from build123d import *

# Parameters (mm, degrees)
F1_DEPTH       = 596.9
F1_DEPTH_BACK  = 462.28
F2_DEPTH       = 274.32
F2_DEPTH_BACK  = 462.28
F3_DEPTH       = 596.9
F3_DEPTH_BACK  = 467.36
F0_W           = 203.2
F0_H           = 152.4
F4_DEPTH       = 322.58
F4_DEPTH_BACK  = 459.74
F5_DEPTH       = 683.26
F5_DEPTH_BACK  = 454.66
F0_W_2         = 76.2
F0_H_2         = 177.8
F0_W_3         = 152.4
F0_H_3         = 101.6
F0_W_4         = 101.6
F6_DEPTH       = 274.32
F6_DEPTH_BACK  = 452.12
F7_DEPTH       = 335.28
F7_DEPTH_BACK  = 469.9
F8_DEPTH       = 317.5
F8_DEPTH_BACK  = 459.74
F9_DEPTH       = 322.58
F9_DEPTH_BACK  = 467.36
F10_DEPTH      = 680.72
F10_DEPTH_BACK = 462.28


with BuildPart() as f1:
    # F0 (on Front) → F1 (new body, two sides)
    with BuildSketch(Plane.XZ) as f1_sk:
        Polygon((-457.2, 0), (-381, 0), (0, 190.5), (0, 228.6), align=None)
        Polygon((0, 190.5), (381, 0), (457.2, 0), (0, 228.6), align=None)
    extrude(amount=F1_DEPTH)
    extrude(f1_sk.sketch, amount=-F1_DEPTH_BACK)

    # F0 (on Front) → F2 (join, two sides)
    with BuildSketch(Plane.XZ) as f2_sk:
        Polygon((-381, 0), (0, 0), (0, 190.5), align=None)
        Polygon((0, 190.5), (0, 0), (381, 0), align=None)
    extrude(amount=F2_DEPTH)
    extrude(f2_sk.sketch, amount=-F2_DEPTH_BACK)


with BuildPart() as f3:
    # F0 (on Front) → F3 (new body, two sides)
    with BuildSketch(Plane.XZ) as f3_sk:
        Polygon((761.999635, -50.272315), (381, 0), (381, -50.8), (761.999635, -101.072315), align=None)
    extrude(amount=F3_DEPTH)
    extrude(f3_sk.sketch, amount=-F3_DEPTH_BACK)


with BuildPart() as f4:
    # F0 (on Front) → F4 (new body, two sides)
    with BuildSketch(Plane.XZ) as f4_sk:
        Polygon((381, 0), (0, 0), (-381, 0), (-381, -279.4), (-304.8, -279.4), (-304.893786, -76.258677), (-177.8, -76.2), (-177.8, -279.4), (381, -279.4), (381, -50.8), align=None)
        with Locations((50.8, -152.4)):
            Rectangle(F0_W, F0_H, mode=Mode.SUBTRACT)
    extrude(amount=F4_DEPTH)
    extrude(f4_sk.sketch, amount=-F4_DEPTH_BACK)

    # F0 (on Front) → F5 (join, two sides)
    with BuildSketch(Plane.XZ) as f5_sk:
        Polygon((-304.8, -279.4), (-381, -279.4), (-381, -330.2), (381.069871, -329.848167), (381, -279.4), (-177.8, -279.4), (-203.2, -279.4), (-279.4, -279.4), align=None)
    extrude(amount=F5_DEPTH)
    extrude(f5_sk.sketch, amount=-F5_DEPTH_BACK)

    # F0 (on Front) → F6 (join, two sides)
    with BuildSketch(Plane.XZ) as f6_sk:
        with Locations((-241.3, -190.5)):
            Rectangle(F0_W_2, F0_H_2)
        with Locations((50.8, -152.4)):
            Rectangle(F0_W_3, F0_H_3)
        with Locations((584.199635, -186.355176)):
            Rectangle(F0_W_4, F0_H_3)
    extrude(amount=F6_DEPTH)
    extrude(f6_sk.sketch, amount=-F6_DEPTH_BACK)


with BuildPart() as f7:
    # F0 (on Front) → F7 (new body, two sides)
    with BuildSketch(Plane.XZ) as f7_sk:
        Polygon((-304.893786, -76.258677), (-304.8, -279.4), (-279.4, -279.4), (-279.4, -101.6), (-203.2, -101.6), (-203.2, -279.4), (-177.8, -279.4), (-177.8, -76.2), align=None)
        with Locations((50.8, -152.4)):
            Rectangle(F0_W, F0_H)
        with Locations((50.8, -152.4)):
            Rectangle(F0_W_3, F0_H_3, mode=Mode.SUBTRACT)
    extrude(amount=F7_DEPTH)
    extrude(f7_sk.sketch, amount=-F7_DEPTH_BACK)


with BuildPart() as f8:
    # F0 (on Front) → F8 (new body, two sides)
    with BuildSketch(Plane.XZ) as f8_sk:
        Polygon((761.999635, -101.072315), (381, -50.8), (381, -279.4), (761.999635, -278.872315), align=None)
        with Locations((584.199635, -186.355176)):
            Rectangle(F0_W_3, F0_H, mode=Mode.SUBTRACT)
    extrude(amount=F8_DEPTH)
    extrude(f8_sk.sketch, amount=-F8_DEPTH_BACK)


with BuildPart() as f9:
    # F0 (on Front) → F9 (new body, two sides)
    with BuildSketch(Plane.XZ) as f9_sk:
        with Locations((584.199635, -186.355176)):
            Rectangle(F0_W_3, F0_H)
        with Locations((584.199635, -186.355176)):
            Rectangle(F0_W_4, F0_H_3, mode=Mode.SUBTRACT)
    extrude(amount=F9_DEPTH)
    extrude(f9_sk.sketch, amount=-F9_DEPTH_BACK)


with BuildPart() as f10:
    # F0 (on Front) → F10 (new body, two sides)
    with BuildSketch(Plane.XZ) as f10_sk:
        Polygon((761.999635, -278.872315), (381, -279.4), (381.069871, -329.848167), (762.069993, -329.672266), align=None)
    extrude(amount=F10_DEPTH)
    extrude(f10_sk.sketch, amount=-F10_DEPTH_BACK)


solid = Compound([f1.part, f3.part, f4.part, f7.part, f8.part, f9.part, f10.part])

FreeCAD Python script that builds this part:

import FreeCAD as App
import Part
import Sketcher
Q = App.Units.Quantity


def add_polygon(sketch, points):
    """Adds a closed chain of lines whose ends are joined by coincident constraints."""
    first, n = sketch.GeometryCount, len(points)
    for a, b in zip(points, points[1:] + points[:1]):
        sketch.addGeometry(Part.LineSegment(App.Vector(*a, 0), App.Vector(*b, 0)), False)
    for i in range(n):
        sketch.addConstraint(Sketcher.Constraint("Coincident", first + i, 2, first + (i + 1) % n, 1))

doc = App.newDocument("Part")
params = doc.addObject("Spreadsheet::Sheet", "Params")
for row, (alias, value) in enumerate([
    ("sketch1_width", "3 in"),
    ("pad1_length", "23.5 in"),
    ("pad1_length2", "18.2 in"),
    ("sketch2_width", "30 in"),
    ("pad2_length", "10.8 in"),
    ("pad2_length2", "18.2 in"),
    ("sketch3_height", "2 in"),
    ("sketch3_length", "15.13 in"),
    ("pad3_length", "23.5 in"),
    ("pad3_length2", "18.4 in"),
    ("sketch4_width", "30 in"),
    ("sketch4_width2", "3 in"),
    ("sketch4_width3", "22 in"),
    ("sketch4_width4", "8 in"),
    ("sketch4_height", "11 in"),
    ("pad4_length", "12.7 in"),
    ("pad4_length2", "18.1 in"),
    ("sketch5_width", "30 in"),
    ("sketch5_height", "2 in"),
    ("pad5_length", "26.9 in"),
    ("pad5_length2", "17.9 in"),
    ("sketch6_width", "3 in"),
    ("sketch6_width2", "6 in"),
    ("sketch6_width3", "4 in"),
    ("sketch6_height", "7 in"),
    ("pad6_length", "10.8 in"),
    ("pad6_length2", "17.8 in"),
    ("sketch7_width", "1 in"),
    ("sketch7_width2", "3 in"),
    ("sketch7_width3", "8 in"),
    ("sketch7_width4", "6 in"),
    ("sketch7_height", "7 in"),
    ("pad7_length", "13.2 in"),
    ("pad7_length2", "18.5 in"),
    ("sketch8_width", "6 in"),
    ("sketch8_height", "9 in"),
    ("sketch8_height2", "7 in"),
    ("sketch8_length", "15 in"),
    ("sketch8_length2", "15.13 in"),
    ("pad8_length", "12.5 in"),
    ("pad8_length2", "18.1 in"),
    ("sketch9_width", "6 in"),
    ("sketch9_width2", "4 in"),
    ("pad9_length", "12.7 in"),
    ("pad9_length2", "18.4 in"),
    ("sketch10_length", "15 in"),
    ("sketch10_length2", "2 in"),
    ("pad10_length", "26.8 in"),
    ("pad10_length2", "18.2 in"),
], start=1):
    params.set(f"A{row}", alias)
    params.set(f"B{row}", "=" + value)
    params.setAlias(f"B{row}", alias)

body = doc.addObject("PartDesign::Body", "Body")

sketch1 = body.newObject("Sketcher::SketchObject", "Sketch")
sketch1.AttachmentSupport = (doc.getObject("XZ_Plane"), [""])
sketch1.MapMode = "FlatFace"
add_polygon(sketch1, [(-457.2, 0), (-381, 0), (0, 190.5), (381, 0), (457.2, 0), (0, 228.6)])
sketch1.addConstraint(Sketcher.Constraint("Horizontal", 0))
sketch1.addConstraint(Sketcher.Constraint("Horizontal", 3))
sketch1.addConstraint(Sketcher.Constraint("Symmetric", 0, 2, 2, 2, -1, 1))
sketch1.addConstraint(Sketcher.Constraint("Symmetric", 3, 2, 5, 2, -2))
sketch1.addConstraint(Sketcher.Constraint("PointOnObject", 1, 2, -2))
sketch1.addConstraint(Sketcher.Constraint("PointOnObject", 4, 2, -2))
sketch1.addConstraint(Sketcher.Constraint("Parallel", 2, 4))
sketch1.addConstraint(Sketcher.Constraint("DistanceX", 0, 1, 0, 2, Q("3 in")))
sketch1.addConstraint(Sketcher.Constraint("DistanceX", 0, 2, -1, 1, Q("15 in")))
sketch1.addConstraint(Sketcher.Constraint("DistanceY", -1, 1, 4, 2, Q("9 in")))
sketch1.setExpression("Constraints[13]", "Params.sketch1_width")
pad1 = body.newObject("PartDesign::Pad", "Pad")
pad1.Profile = sketch1
pad1.Type = "TwoLengths"
pad1.setExpression("Length", "Params.pad1_length")
pad1.setExpression("Length2", "Params.pad1_length2")

sketch2 = body.newObject("Sketcher::SketchObject", "Sketch001")
sketch2.AttachmentSupport = (doc.getObject("XZ_Plane"), [""])
sketch2.MapMode = "FlatFace"
add_polygon(sketch2, [(-381, 0), (381, 0), (0, 190.5)])
sketch2.addConstraint(Sketcher.Constraint("Horizontal", 0))
sketch2.addConstraint(Sketcher.Constraint("Symmetric", 0, 2, 2, 2, -1, 1))
sketch2.addConstraint(Sketcher.Constraint("PointOnObject", 1, 2, -2))
sketch2.addConstraint(Sketcher.Constraint("DistanceX", 0, 1, 0, 2, Q("30 in")))
sketch2.addConstraint(Sketcher.Constraint("DistanceY", -1, 1, 1, 2, Q("7.5 in")))
sketch2.setExpression("Constraints[6]", "Params.sketch2_width")
pad2 = body.newObject("PartDesign::Pad", "Pad001")
pad2.Profile = sketch2
pad2.Type = "TwoLengths"
pad2.setExpression("Length", "Params.pad2_length")
pad2.setExpression("Length2", "Params.pad2_length2")
body2 = doc.addObject("PartDesign::Body", "Body001")

sketch3 = body2.newObject("Sketcher::SketchObject", "Sketch002")
sketch3.AttachmentSupport = (doc.getObject("XZ_Plane001"), [""])
sketch3.MapMode = "FlatFace"
add_polygon(sketch3, [(761.999635, -50.272315), (381, 0), (381, -50.8), (761.999635, -101.072315)])
sketch3.addConstraint(Sketcher.Constraint("Vertical", 1))
sketch3.addConstraint(Sketcher.Constraint("Vertical", 3))
sketch3.addConstraint(Sketcher.Constraint("PointOnObject", 0, 2, -1))
sketch3.addConstraint(Sketcher.Constraint("Parallel", 0, 2))
sketch3.addConstraint(Sketcher.Constraint("DistanceY", 1, 2, 1, 1, Q("2 in")))
sketch3.addConstraint(Sketcher.Constraint("DistanceX", -1, 1, 0, 2, Q("15 in")))
sketch3.addConstraint(Sketcher.Constraint("Distance", 0, Q("15.13 in")))
sketch3.addConstraint(Sketcher.Constraint("DistanceX", -1, 1, 2, 2, 761.999635))
sketch3.setExpression("Constraints[8]", "Params.sketch3_height")
sketch3.setExpression("Constraints[10]", "Params.sketch3_length")
pad3 = body2.newObject("PartDesign::Pad", "Pad002")
pad3.Profile = sketch3
pad3.Type = "TwoLengths"
pad3.setExpression("Length", "Params.pad3_length")
pad3.setExpression("Length2", "Params.pad3_length2")
body3 = doc.addObject("PartDesign::Body", "Body002")
body3.AllowCompound = True

sketch4 = body3.newObject("Sketcher::SketchObject", "Sketch003")
sketch4.AttachmentSupport = (doc.getObject("XZ_Plane002"), [""])
sketch4.MapMode = "FlatFace"
add_polygon(sketch4, [(381, 0), (-381, 0), (-381, -279.4), (-304.8, -279.4), (-304.893786, -76.258677), (-177.8, -76.2), (-177.8, -279.4), (381, -279.4)])
add_polygon(sketch4, [(152.4, -228.6), (-50.8, -228.6), (-50.8, -76.2), (152.4, -76.2)])
sketch4.addConstraint(Sketcher.Constraint("Horizontal", 0))
sketch4.addConstraint(Sketcher.Constraint("Vertical", 1))
sketch4.addConstraint(Sketcher.Constraint("Horizontal", 2))
sketch4.addConstraint(Sketcher.Constraint("Vertical", 5))
sketch4.addConstraint(Sketcher.Constraint("Horizontal", 6))
sketch4.addConstraint(Sketcher.Constraint("Vertical", 7))
sketch4.addConstraint(Sketcher.Constraint("Horizontal", 8))
sketch4.addConstraint(Sketcher.Constraint("Vertical", 9))
sketch4.addConstraint(Sketcher.Constraint("Horizontal", 10))
sketch4.addConstraint(Sketcher.Constraint("Vertical", 11))
sketch4.addConstraint(Sketcher.Constraint("Symmetric", 0, 2, 7, 2, -1, 1))
sketch4.addConstraint(Sketcher.Constraint("Perpendicular", 3, 4))
sketch4.addConstraint(Sketcher.Constraint("Horizontal", 2, 2, 5, 2))
sketch4.addConstraint(Sketcher.Constraint("Horizontal", 4, 2, 9, 2))
sketch4.addConstraint(Sketcher.Constraint("Equal", 10, 5))
sketch4.addConstraint(Sketcher.Constraint("DistanceX", 0, 2, 0, 1, Q("30 in")))
sketch4.addConstraint(Sketcher.Constraint("DistanceX", 2, 1, 2, 2, Q("3 in")))
sketch4.addConstraint(Sketcher.Constraint("DistanceX", 6, 1, 6, 2, Q("22 in")))
sketch4.addConstraint(Sketcher.Constraint("DistanceX", 8, 2, 8, 1, Q("8 in")))
sketch4.addConstraint(Sketcher.Constraint("DistanceY", 1, 2, 1, 1, Q("11 in")))
sketch4.addConstraint(Sketcher.Constraint("DistanceY", 9, 1, 9, 2, Q("6 in")))
sketch4.addConstraint(Sketcher.Constraint("DistanceX", 8, 2, -1, 1, Q("2 in")))
sketch4.addConstraint(Sketcher.Constraint("Distance", 4, 127.0938))
sketch4.setExpression("Constraints[27]", "Params.sketch4_width")
sketch4.setExpression("Constraints[28]", "Params.sketch4_width2")
sketch4.setExpression("Constraints[29]", "Params.sketch4_width3")
sketch4.setExpression("Constraints[30]", "Params.sketch4_width4")
sketch4.setExpression("Constraints[31]", "Params.sketch4_height")
pad4 = body3.newObject("PartDesign::Pad", "Pad003")
pad4.Profile = sketch4
pad4.Type = "TwoLengths"
pad4.setExpression("Length", "Params.pad4_length")
pad4.setExpression("Length2", "Params.pad4_length2")

sketch5 = body3.newObject("Sketcher::SketchObject", "Sketch004")
sketch5.AttachmentSupport = (doc.getObject("XZ_Plane002"), [""])
sketch5.MapMode = "FlatFace"
add_polygon(sketch5, [(-381, -279.4), (-381, -330.2), (381.069871, -329.848167), (381, -279.4)])
sketch5.addConstraint(Sketcher.Constraint("Vertical", 0))
sketch5.addConstraint(Sketcher.Constraint("Horizontal", 3))
sketch5.addConstraint(Sketcher.Constraint("DistanceX", 3, 2, 3, 1, Q("30 in")))
sketch5.addConstraint(Sketcher.Constraint("DistanceY", 0, 2, 0, 1, Q("2 in")))
sketch5.addConstraint(Sketcher.Constraint("DistanceX", 0, 2, -1, 1, Q("15 in")))
sketch5.addConstraint(Sketcher.Constraint("DistanceY", 0, 2, -1, 1, Q("13 in")))
sketch5.addConstraint(Sketcher.Constraint("DistanceX", -1, 1, 1, 2, 381.069871))
sketch5.addConstraint(Sketcher.Constraint("Distance", 2, 50.448215))
sketch5.setExpression("Constraints[6]", "Params.sketch5_width")
sketch5.setExpression("Constraints[7]", "Params.sketch5_height")
pad5 = body3.newObject("PartDesign::Pad", "Pad004")
pad5.Profile = sketch5
pad5.Type = "TwoLengths"
pad5.setExpression("Length", "Params.pad5_length")
pad5.setExpression("Length2", "Params.pad5_length2")

sketch6 = body3.newObject("Sketcher::SketchObject", "Sketch005")
sketch6.AttachmentSupport = (doc.getObject("XZ_Plane002"), [""])
sketch6.MapMode = "FlatFace"
add_polygon(sketch6, [(-279.4, -101.6), (-279.4, -279.4), (-203.2, -279.4), (-203.2, -101.6)])
add_polygon(sketch6, [(-25.4, -101.6), (-25.4, -203.2), (127, -203.2), (127, -101.6)])
add_polygon(sketch6, [(533.399635, -135.555176), (533.399635, -237.155176), (634.999635, -237.155176), (634.999635, -135.555176)])
sketch6.addConstraint(Sketcher.Constraint("Vertical", 0))
sketch6.addConstraint(Sketcher.Constraint("Horizontal", 1))
sketch6.addConstraint(Sketcher.Constraint("Vertical", 2))
sketch6.addConstraint(Sketcher.Constraint("Horizontal", 3))
sketch6.addConstraint(Sketcher.Constraint("Vertical", 4))
sketch6.addConstraint(Sketcher.Constraint("Horizontal", 5))
sketch6.addConstraint(Sketcher.Constraint("Vertical", 6))
sketch6.addConstraint(Sketcher.Constraint("Horizontal", 7))
sketch6.addConstraint(Sketcher.Constraint("Vertical", 8))
sketch6.addConstraint(Sketcher.Constraint("Horizontal", 9))
sketch6.addConstraint(Sketcher.Constraint("Vertical", 10))
sketch6.addConstraint(Sketcher.Constraint("Horizontal", 11))
sketch6.addConstraint(Sketcher.Constraint("Horizontal", 3, 2, 6, 2))
sketch6.addConstraint(Sketcher.Constraint("Equal", 11, 4))
sketch6.addConstraint(Sketcher.Constraint("Equal", 6, 8))
sketch6.addConstraint(Sketcher.Constraint("DistanceX", 1, 1, 1, 2, Q("3 in")))
sketch6.addConstraint(Sketcher.Constraint("DistanceX", 5, 1, 5, 2, Q("6 in")))
sketch6.addConstraint(Sketcher.Constraint("DistanceX", 9, 1, 9, 2, Q("4 in")))
sketch6.addConstraint(Sketcher.Constraint("DistanceY", 0, 2, 0, 1, Q("7 in")))
sketch6.addConstraint(Sketcher.Constraint("DistanceX", 0, 2, -1, 1, Q("11 in")))
sketch6.addConstraint(Sketcher.Constraint("DistanceY", 0, 2, -1, 1, Q("11 in")))
sketch6.addConstraint(Sketcher.Constraint("DistanceX", 4, 2, -1, 1, Q("1 in")))
sketch6.addConstraint(Sketcher.Constraint("DistanceX", -1, 1, 8, 2, 533.399635))
sketch6.addConstraint(Sketcher.Constraint("DistanceY", 8, 2, -1, 1, 237.155176))
sketch6.setExpression("Constraints[27]", "Params.sketch6_width")
sketch6.setExpression("Constraints[28]", "Params.sketch6_width2")
sketch6.setExpression("Constraints[29]", "Params.sketch6_width3")
sketch6.setExpression("Constraints[30]", "Params.sketch6_height")
pad6 = body3.newObject("PartDesign::Pad", "Pad005")
pad6.Profile = sketch6
pad6.Type = "TwoLengths"
pad6.setExpression("Length", "Params.pad6_length")
pad6.setExpression("Length2", "Params.pad6_length2")
body4 = doc.addObject("PartDesign::Body", "Body003")
body4.AllowCompound = True

sketch7 = body4.newObject("Sketcher::SketchObject", "Sketch006")
sketch7.AttachmentSupport = (doc.getObject("XZ_Plane003"), [""])
sketch7.MapMode = "FlatFace"
add_polygon(sketch7, [(-304.893786, -76.258677), (-304.8, -279.4), (-279.4, -279.4), (-279.4, -101.6), (-203.2, -101.6), (-203.2, -279.4), (-177.8, -279.4), (-177.8, -76.2)])
add_polygon(sketch7, [(-50.8, -76.2), (-50.8, -228.6), (152.4, -228.6), (152.4, -76.2)])
add_polygon(sketch7, [(127, -203.2), (-25.4, -203.2), (-25.4, -101.6), (127, -101.6)])
sketch7.addConstraint(Sketcher.Constraint("Horizontal", 1))
sketch7.addConstraint(Sketcher.Constraint("Vertical", 2))
sketch7.addConstraint(Sketcher.Constraint("Horizontal", 3))
sketch7.addConstraint(Sketcher.Constraint("Vertical", 4))
sketch7.addConstraint(Sketcher.Constraint("Horizontal", 5))
sketch7.addConstraint(Sketcher.Constraint("Vertical", 6))
sketch7.addConstraint(Sketcher.Constraint("Vertical", 8))
sketch7.addConstraint(Sketcher.Constraint("Horizontal", 9))
sketch7.addConstraint(Sketcher.Constraint("Vertical", 10))
sketch7.addConstraint(Sketcher.Constraint("Horizontal", 11))
sketch7.addConstraint(Sketcher.Constraint("Horizontal", 12))
sketch7.addConstraint(Sketcher.Constraint("Vertical", 13))
sketch7.addConstraint(Sketcher.Constraint("Horizontal", 14))
sketch7.addConstraint(Sketcher.Constraint("Vertical", 15))
sketch7.addConstraint(Sketcher.Constraint("Perpendicular", 0, 7))
sketch7.addConstraint(Sketcher.Constraint("Horizontal", 1, 2, 4, 2))
sketch7.addConstraint(Sketcher.Constraint("Horizontal", 6, 2, 10, 2))
sketch7.addConstraint(Sketcher.Constraint("Horizontal", 3, 2, 13, 2))
sketch7.addConstraint(Sketcher.Constraint("Equal", 1, 5))
sketch7.addConstraint(Sketcher.Constraint("Equal", 11, 6))
sketch7.addConstraint(Sketcher.Constraint("Equal", 14, 8))
sketch7.addConstraint(Sketcher.Constraint("DistanceX", 1, 1, 1, 2, Q("1 in")))
sketch7.addConstraint(Sketcher.Constraint("DistanceX", 3, 1, 3, 2, Q("3 in")))
sketch7.addConstraint(Sketcher.Constraint("DistanceX", 9, 1, 9, 2, Q("8 in")))
sketch7.addConstraint(Sketcher.Constraint("DistanceX", 12, 2, 12, 1, Q("6 in")))
sketch7.addConstraint(Sketcher.Constraint("DistanceY", 2, 1, 2, 2, Q("7 in")))
sketch7.addConstraint(Sketcher.Constraint("DistanceY", 13, 1, 13, 2, Q("4 in")))
sketch7.addConstraint(Sketcher.Constraint("DistanceX", 0, 2, -1, 1, Q("12 in")))
sketch7.addConstraint(Sketcher.Constraint("DistanceY", 0, 2, -1, 1, Q("11 in")))
sketch7.addConstraint(Sketcher.Constraint("DistanceX", 8, 2, -1, 1, Q("2 in")))
sketch7.addConstraint(Sketcher.Constraint("DistanceX", 12, 2, -1, 1, Q("1 in")))
sketch7.addConstraint(Sketcher.Constraint("Distance", 7, 127.0938))
sketch7.setExpression("Constraints[37]", "Params.sketch7_width")
sketch7.setExpression("Constraints[38]", "Params.sketch7_width2")
sketch7.setExpression("Constraints[39]", "Params.sketch7_width3")
sketch7.setExpression("Constraints[40]", "Params.sketch7_width4")
sketch7.setExpression("Constraints[41]", "Params.sketch7_height")
pad7 = body4.newObject("PartDesign::Pad", "Pad006")
pad7.Profile = sketch7
pad7.Type = "TwoLengths"
pad7.setExpression("Length", "Params.pad7_length")
pad7.setExpression("Length2", "Params.pad7_length2")
body5 = doc.addObject("PartDesign::Body", "Body004")

sketch8 = body5.newObject("Sketcher::SketchObject", "Sketch007")
sketch8.AttachmentSupport = (doc.getObject("XZ_Plane004"), [""])
sketch8.MapMode = "FlatFace"
add_polygon(sketch8, [(761.999635, -101.072315), (381, -50.8), (381, -279.4), (761.999635, -278.872315)])
add_polygon(sketch8, [(660.399635, -262.555176), (507.999635, -262.555176), (507.999635, -110.155176), (660.399635, -110.155176)])
sketch8.addConstraint(Sketcher.Constraint("Vertical", 1))
sketch8.addConstraint(Sketcher.Constraint("Vertical", 3))
sketch8.addConstraint(Sketcher.Constraint("Horizontal", 4))
sketch8.addConstraint(Sketcher.Constraint("Vertical", 5))
sketch8.addConstraint(Sketcher.Constraint("Horizontal", 6))
sketch8.addConstraint(Sketcher.Constraint("Vertical", 7))
sketch8.addConstraint(Sketcher.Constraint("Equal", 6, 5))
sketch8.addConstraint(Sketcher.Constraint("DistanceX", 4, 2, 4, 1, Q("6 in")))
sketch8.addConstraint(Sketcher.Constraint("DistanceY", 1, 2, 1, 1, Q("9 in")))
sketch8.addConstraint(Sketcher.Constraint("DistanceY", 3, 1, 3, 2, Q("7 in")))
sketch8.addConstraint(Sketcher.Constraint("Distance", 2, Q("15 in")))
sketch8.addConstraint(Sketcher.Constraint("DistanceX", -1, 1, 0, 2, Q("15 in")))
sketch8.addConstraint(Sketcher.Constraint("DistanceY", 0, 2, -1, 1, Q("2 in")))
sketch8.addConstraint(Sketcher.Constraint("DistanceX", 4, 2, 2, 2, Q("10 in")))
sketch8.addConstraint(Sketcher.Constraint("Distance", 0, Q("15.13 in")))
sketch8.addConstraint(Sketcher.Constraint("DistanceY", 2, 2, 4, 2, 16.317139))
sketch8.setExpression("Constraints[15]", "Params.sketch8_width")
sketch8.setExpression("Constraints[16]", "Params.sketch8_height")
sketch8.setExpression("Constraints[17]", "Params.sketch8_height2")
sketch8.setExpression("Constraints[18]", "Params.sketch8_length")
sketch8.setExpression("Constraints[22]", "Params.sketch8_length2")
pad8 = body5.newObject("PartDesign::Pad", "Pad007")
pad8.Profile = sketch8
pad8.Type = "TwoLengths"
pad8.setExpression("Length", "Params.pad8_length")
pad8.setExpression("Length2", "Params.pad8_length2")
body6 = doc.addObject("PartDesign::Body", "Body005")

sketch9 = body6.newObject("Sketcher::SketchObject", "Sketch008")
sketch9.AttachmentSupport = (doc.getObject("XZ_Plane005"), [""])
sketch9.MapMode = "FlatFace"
add_polygon(sketch9, [(507.999635, -110.155176), (507.999635, -262.555176), (660.399635, -262.555176), (660.399635, -110.155176)])
add_polygon(sketch9, [(634.999635, -237.155176), (533.399635, -237.155176), (533.399635, -135.555176), (634.999635, -135.555176)])
sketch9.addConstraint(Sketcher.Constraint("Vertical", 0))
sketch9.addConstraint(Sketcher.Constraint("Horizontal", 1))
sketch9.addConstraint(Sketcher.Constraint("Vertical", 2))
sketch9.addConstraint(Sketcher.Constraint("Horizontal", 3))
sketch9.addConstraint(Sketcher.Constraint("Horizontal", 4))
sketch9.addConstraint(Sketcher.Constraint("Vertical", 5))
sketch9.addConstraint(Sketcher.Constraint("Horizontal", 6))
sketch9.addConstraint(Sketcher.Constraint("Vertical", 7))
sketch9.addConstraint(Sketcher.Constraint("Equal", 3, 0))
sketch9.addConstraint(Sketcher.Constraint("Equal", 6, 5))
sketch9.addConstraint(Sketcher.Constraint("DistanceX", 1, 1, 1, 2, Q("6 in")))
sketch9.addConstraint(Sketcher.Constraint("DistanceX", 4, 2, 4, 1, Q("4 in")))
sketch9.addConstraint(Sketcher.Constraint("DistanceX", 0, 2, 4, 2, Q("1 in")))
sketch9.addConstraint(Sketcher.Constraint("DistanceY", 0, 2, 4, 2, Q("1 in")))
sketch9.addConstraint(Sketcher.Constraint("DistanceX", -1, 1, 0, 2, 507.999635))
sketch9.addConstraint(Sketcher.Constraint("DistanceY", 0, 2, -1, 1, 262.555176))
sketch9.setExpression("Constraints[18]", "Params.sketch9_width")
sketch9.setExpression("Constraints[19]", "Params.sketch9_width2")
pad9 = body6.newObject("PartDesign::Pad", "Pad008")
pad9.Profile = sketch9
pad9.Type = "TwoLengths"
pad9.setExpression("Length", "Params.pad9_length")
pad9.setExpression("Length2", "Params.pad9_length2")
body7 = doc.addObject("PartDesign::Body", "Body006")

sketch10 = body7.newObject("Sketcher::SketchObject", "Sketch009")
sketch10.AttachmentSupport = (doc.getObject("XZ_Plane006"), [""])
sketch10.MapMode = "FlatFace"
add_polygon(sketch10, [(761.999635, -278.872315), (381, -279.4), (381.069871, -329.848167), (762.069993, -329.672266)])
sketch10.addConstraint(Sketcher.Constraint("Perpendicular", 0, 1))
sketch10.addConstraint(Sketcher.Constraint("Parallel", 1, 3))
sketch10.addConstraint(Sketcher.Constraint("Distance", 0, Q("15 in")))
sketch10.addConstraint(Sketcher.Constraint("Distance", 3, Q("2 in")))
sketch10.addConstraint(Sketcher.Constraint("DistanceX", -1, 1, 0, 2, Q("15 in")))
sketch10.addConstraint(Sketcher.Constraint("DistanceY", 0, 2, -1, 1, Q("11 in")))
sketch10.addConstraint(Sketcher.Constraint("DistanceY", 1, 2, 2, 2, 0.175901))
sketch10.addConstraint(Sketcher.Constraint("DistanceX", -1, 1, 1, 2, 381.069871))
sketch10.setExpression("Constraints[6]", "Params.sketch10_length")
sketch10.setExpression("Constraints[7]", "Params.sketch10_length2")
pad10 = body7.newObject("PartDesign::Pad", "Pad009")
pad10.Profile = sketch10
pad10.Type = "TwoLengths"
pad10.setExpression("Length", "Params.pad10_length")
pad10.setExpression("Length2", "Params.pad10_length2")

doc.recompute()
